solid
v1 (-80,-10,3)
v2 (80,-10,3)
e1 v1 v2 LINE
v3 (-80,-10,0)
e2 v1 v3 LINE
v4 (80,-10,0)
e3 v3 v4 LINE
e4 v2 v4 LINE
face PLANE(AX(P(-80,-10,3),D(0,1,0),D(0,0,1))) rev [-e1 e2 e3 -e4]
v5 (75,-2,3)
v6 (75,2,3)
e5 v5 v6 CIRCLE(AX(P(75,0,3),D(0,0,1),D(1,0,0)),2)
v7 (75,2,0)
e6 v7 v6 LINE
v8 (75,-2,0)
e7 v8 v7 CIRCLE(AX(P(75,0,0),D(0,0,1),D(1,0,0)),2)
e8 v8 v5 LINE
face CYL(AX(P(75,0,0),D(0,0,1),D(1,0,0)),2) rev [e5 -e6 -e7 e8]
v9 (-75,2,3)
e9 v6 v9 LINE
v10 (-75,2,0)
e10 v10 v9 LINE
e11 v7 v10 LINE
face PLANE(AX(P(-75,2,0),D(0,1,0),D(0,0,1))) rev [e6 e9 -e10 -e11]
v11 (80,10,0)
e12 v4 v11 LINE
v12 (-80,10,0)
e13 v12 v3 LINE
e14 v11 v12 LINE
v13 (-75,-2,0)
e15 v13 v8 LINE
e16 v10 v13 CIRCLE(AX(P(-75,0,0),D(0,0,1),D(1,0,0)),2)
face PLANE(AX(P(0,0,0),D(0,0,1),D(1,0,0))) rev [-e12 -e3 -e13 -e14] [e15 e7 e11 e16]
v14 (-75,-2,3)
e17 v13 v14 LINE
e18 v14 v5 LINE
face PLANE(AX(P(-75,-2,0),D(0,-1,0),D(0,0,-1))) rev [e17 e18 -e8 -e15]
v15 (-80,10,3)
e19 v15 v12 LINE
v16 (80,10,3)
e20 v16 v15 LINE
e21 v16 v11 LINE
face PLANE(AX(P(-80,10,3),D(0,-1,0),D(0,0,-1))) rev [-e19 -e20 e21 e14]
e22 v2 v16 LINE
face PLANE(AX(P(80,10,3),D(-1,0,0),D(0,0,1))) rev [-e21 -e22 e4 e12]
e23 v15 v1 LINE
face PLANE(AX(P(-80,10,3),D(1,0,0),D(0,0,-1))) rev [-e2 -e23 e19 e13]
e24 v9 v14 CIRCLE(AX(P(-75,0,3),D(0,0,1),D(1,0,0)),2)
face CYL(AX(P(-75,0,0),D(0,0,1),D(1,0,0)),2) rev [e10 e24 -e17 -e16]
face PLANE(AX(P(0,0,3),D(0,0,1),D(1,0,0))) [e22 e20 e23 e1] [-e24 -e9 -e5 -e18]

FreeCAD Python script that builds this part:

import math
import FreeCAD as App
import Part
import Sketcher

doc = App.newDocument("Part")
body = doc.addObject("PartDesign::Body", "Body")

sketch1 = body.newObject("Sketcher::SketchObject", "Sketch")
sketch1.AttachmentSupport = (doc.getObject("XY_Plane"), [""])
sketch1.MapMode = "FlatFace"
sketch1.addGeometry([
    Part.LineSegment(App.Vector(-80, 10, 0), App.Vector(-80, -10, 0)),
    Part.LineSegment(App.Vector(-80, -10, 0), App.Vector(80, -10, 0)),
    Part.LineSegment(App.Vector(80, -10, 0), App.Vector(80, 10, 0)),
    Part.LineSegment(App.Vector(80, 10, 0), App.Vector(-80, 10, 0)),
], False)
sketch1.addConstraint([
    Sketcher.Constraint("Coincident", 0, 2, 1, 1),
    Sketcher.Constraint("Coincident", 1, 2, 2, 1),
    Sketcher.Constraint("Coincident", 2, 2, 3, 1),
    Sketcher.Constraint("Coincident", 3, 2, 0, 1),
    Sketcher.Constraint("Vertical", 0),
    Sketcher.Constraint("Horizontal", 1),
    Sketcher.Constraint("Vertical", 2),
    Sketcher.Constraint("Horizontal", 3),
    Sketcher.Constraint("Symmetric", 0, 2, 2, 2, -1, 1),
    Sketcher.Constraint("DistanceX", 1, 1, 1, 2, 160.0),
    Sketcher.Constraint("DistanceY", 0, 2, 0, 1, 20.0),
])
pad1 = body.newObject("PartDesign::Pad", "Pad")
pad1.Profile = sketch1
pad1.Length = 3

sketch2 = body.newObject("Sketcher::SketchObject", "Sketch001")
sketch2.AttachmentSupport = (doc.getObject("XY_Plane"), [""])
sketch2.MapMode = "FlatFace"
sketch2.AttachmentOffset = App.Placement(App.Vector(0, 0, 3), App.Rotation())
sketch2.addGeometry([
    Part.LineSegment(App.Vector(75, 2, 0), App.Vector(-75, 2, 0)),
    Part.ArcOfCircle(Part.Circle(App.Vector(-75, 0, 0), App.Vector(0, 0, 1), 2), math.radians(90), math.radians(270)),
    Part.LineSegment(App.Vector(-75, -2, 0), App.Vector(75, -2, 0)),
    Part.ArcOfCircle(Part.Circle(App.Vector(75, 0, 0), App.Vector(0, 0, 1), 2), math.radians(-90), math.radians(90)),
], False)
sketch2.addConstraint([
    Sketcher.Constraint("Tangent", 0, 2, 1, 1),
    Sketcher.Constraint("Tangent", 1, 2, 2, 1),
    Sketcher.Constraint("Tangent", 2, 2, 3, 1),
    Sketcher.Constraint("Tangent", 3, 2, 0, 1),
    Sketcher.Constraint("Horizontal", 0),
    Sketcher.Constraint("Horizontal", 2),
    Sketcher.Constraint("Symmetric", 1, 3, 3, 3, -1, 1),
    Sketcher.Constraint("Radius", 1, 2.0),
    Sketcher.Constraint("DistanceX", 0, 2, 0, 1, 150.0),
])
pocket1 = body.newObject("PartDesign::Pocket", "Pocket")
pocket1.Profile = sketch2
pocket1.Length = 3

doc.recompute()
